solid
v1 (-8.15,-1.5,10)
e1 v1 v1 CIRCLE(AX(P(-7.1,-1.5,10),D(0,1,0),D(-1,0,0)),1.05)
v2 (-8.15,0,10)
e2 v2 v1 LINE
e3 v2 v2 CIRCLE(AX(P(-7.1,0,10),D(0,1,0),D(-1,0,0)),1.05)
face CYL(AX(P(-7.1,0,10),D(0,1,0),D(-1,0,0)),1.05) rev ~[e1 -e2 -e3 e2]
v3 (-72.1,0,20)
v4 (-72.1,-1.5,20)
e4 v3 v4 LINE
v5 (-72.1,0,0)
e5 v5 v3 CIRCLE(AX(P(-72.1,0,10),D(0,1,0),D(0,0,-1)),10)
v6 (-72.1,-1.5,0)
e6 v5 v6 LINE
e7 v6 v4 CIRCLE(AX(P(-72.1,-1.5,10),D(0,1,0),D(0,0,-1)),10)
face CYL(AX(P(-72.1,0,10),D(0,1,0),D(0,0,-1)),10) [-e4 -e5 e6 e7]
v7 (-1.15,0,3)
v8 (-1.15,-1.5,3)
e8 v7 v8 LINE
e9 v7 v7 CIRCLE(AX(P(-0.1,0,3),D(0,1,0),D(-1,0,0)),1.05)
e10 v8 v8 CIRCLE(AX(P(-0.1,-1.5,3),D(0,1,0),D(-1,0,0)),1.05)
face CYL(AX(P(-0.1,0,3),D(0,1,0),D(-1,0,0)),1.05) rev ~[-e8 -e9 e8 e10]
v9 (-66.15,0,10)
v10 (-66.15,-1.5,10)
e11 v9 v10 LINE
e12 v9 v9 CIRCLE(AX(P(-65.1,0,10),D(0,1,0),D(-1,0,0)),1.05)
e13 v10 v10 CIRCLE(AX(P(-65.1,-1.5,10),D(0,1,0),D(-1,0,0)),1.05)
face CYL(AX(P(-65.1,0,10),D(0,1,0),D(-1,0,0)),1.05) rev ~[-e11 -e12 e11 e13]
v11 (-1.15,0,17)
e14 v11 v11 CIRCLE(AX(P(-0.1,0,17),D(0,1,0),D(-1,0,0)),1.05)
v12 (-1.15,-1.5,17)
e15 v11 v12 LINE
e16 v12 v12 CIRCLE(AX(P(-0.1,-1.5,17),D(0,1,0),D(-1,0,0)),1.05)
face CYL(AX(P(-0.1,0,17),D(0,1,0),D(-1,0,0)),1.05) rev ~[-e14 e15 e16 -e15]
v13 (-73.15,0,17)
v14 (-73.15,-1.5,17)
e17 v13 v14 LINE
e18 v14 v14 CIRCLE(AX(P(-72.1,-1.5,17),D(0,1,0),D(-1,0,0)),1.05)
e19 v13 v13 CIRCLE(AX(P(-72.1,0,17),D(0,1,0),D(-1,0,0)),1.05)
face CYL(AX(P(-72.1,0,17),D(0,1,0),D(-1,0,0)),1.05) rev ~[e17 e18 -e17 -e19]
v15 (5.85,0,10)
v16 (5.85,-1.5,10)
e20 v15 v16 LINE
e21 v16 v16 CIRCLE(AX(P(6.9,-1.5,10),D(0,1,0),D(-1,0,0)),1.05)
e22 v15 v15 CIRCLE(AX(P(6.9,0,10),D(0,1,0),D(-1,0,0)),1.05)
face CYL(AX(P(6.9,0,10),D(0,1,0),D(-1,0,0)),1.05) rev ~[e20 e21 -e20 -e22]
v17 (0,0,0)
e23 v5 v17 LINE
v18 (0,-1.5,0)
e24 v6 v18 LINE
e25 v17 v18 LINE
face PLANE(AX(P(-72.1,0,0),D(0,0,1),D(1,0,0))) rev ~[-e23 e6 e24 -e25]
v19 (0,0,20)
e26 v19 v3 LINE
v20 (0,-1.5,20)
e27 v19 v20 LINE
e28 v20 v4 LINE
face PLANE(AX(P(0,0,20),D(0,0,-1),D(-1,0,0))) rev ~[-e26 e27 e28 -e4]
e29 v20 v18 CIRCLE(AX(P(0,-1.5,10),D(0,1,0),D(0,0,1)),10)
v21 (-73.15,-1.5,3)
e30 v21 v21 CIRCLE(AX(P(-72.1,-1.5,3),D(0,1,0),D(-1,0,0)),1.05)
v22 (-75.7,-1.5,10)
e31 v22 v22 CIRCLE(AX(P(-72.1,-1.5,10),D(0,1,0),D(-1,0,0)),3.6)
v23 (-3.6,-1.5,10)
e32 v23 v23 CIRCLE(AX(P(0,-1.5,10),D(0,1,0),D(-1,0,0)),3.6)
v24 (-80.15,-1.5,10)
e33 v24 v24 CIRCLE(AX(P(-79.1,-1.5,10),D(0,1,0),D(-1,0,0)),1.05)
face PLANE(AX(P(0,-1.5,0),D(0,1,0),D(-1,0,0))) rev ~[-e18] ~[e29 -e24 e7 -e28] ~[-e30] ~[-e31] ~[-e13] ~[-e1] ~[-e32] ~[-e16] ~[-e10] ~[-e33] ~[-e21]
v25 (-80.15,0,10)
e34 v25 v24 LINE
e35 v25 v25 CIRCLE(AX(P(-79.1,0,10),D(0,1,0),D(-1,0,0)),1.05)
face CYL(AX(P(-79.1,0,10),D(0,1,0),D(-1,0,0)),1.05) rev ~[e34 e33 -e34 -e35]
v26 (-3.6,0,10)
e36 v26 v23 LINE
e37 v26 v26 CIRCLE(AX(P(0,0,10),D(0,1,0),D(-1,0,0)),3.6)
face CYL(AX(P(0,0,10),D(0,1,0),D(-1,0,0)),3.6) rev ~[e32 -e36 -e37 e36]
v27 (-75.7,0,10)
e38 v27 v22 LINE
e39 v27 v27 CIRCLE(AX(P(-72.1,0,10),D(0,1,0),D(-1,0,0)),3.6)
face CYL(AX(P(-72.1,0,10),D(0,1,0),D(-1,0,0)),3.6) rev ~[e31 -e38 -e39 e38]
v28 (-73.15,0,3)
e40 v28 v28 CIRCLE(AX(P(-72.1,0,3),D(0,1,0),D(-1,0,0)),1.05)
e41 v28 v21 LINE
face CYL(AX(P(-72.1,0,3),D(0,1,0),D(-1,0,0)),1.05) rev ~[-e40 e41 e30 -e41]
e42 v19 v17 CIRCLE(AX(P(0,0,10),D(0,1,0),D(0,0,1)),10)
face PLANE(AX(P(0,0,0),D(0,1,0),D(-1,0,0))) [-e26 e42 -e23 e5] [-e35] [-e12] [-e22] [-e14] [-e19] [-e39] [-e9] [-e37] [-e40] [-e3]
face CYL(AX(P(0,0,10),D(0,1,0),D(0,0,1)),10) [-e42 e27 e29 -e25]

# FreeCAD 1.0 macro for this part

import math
import FreeCAD as App
import Part
import Sketcher
from FreeCAD import Vector

doc = App.newDocument("Part")
body = doc.addObject("PartDesign::Body", "Body")

sketch1 = doc.addObject("Sketcher::SketchObject", "Sketch")
body.addObject(sketch1)
sketch1.AttachmentSupport = (doc.XZ_Plane, [""])
sketch1.MapMode = "FlatFace"
sketch1.addGeometry(Part.LineSegment(Vector(-72.1, 20, 0), Vector(0, 20, 0)), False)
sketch1.addGeometry(Part.ArcOfCircle(Part.Circle(Vector(0, 10, 0), Vector(0, 0, 1), 10), math.radians(-90), math.radians(90)), False)
sketch1.addGeometry(Part.LineSegment(Vector(0, 0, 0), Vector(-72.1, 0, 0)), False)
sketch1.addGeometry(Part.ArcOfCircle(Part.Circle(Vector(-72.1, 10, 0), Vector(0, 0, 1), 10), math.radians(90), math.radians(270)), False)
sketch1.addGeometry(Part.Circle(Vector(-0.1, 3, 0), Vector(0, 0, 1), 1.1), False)
sketch1.addGeometry(Part.Circle(Vector(-72.1, 3, 0), Vector(0, 0, 1), 1.1), False)
sketch1.addGeometry(Part.Circle(Vector(6.9, 10, 0), Vector(0, 0, 1), 1.1), False)
sketch1.addGeometry(Part.Circle(Vector(0, 10, 0), Vector(0, 0, 1), 3.6), False)
sketch1.addGeometry(Part.Circle(Vector(-7.1, 10, 0), Vector(0, 0, 1), 1.1), False)
sketch1.addGeometry(Part.Circle(Vector(-0.1, 17, 0), Vector(0, 0, 1), 1.1), False)
sketch1.addGeometry(Part.Circle(Vector(-65.1, 10, 0), Vector(0, 0, 1), 1.1), False)
sketch1.addGeometry(Part.Circle(Vector(-72.1, 10, 0), Vector(0, 0, 1), 3.6), False)
sketch1.addGeometry(Part.Circle(Vector(-79.1, 10, 0), Vector(0, 0, 1), 1.1), False)
sketch1.addGeometry(Part.Circle(Vector(-72.1, 17, 0), Vector(0, 0, 1), 1.1), False)
sketch1.addConstraint(Sketcher.Constraint("Tangent", 0, 2, 1, 2))
sketch1.addConstraint(Sketcher.Constraint("Tangent", 1, 1, 2, 1))
sketch1.addConstraint(Sketcher.Constraint("Tangent", 2, 2, 3, 2))
sketch1.addConstraint(Sketcher.Constraint("Tangent", 3, 1, 0, 1))
sketch1.addConstraint(Sketcher.Constraint("Horizontal", 0))
sketch1.addConstraint(Sketcher.Constraint("Horizontal", 2))
sketch1.addConstraint(Sketcher.Constraint("Coincident", 1, 1, -1, 1))
sketch1.addConstraint(Sketcher.Constraint("Coincident", 7, 3, 1, 3))
sketch1.addConstraint(Sketcher.Constraint("Coincident", 11, 3, 3, 3))
sketch1.addConstraint(Sketcher.Constraint("Equal", 4, 5))
sketch1.addConstraint(Sketcher.Constraint("Equal", 5, 6))
sketch1.addConstraint(Sketcher.Constraint("Equal", 6, 8))
sketch1.addConstraint(Sketcher.Constraint("Equal", 8, 9))
sketch1.addConstraint(Sketcher.Constraint("Equal", 9, 10))
sketch1.addConstraint(Sketcher.Constraint("Equal", 7, 11))
sketch1.addConstraint(Sketcher.Constraint("Equal", 10, 12))
sketch1.addConstraint(Sketcher.Constraint("Equal", 12, 13))
sketch1.addConstraint(Sketcher.Constraint("Horizontal", 4, 3, 5, 3))
sketch1.addConstraint(Sketcher.Constraint("Horizontal", 3, 3, 6, 3))
sketch1.addConstraint(Sketcher.Constraint("Horizontal", 7, 3, 8, 3))
sketch1.addConstraint(Sketcher.Constraint("Horizontal", 8, 3, 10, 3))
sketch1.addConstraint(Sketcher.Constraint("Horizontal", 11, 3, 12, 3))
sketch1.addConstraint(Sketcher.Constraint("Horizontal", 9, 3, 13, 3))
sketch1.addConstraint(Sketcher.Constraint("Vertical", 3, 3, 5, 3))
sketch1.addConstraint(Sketcher.Constraint("Vertical", 4, 3, 9, 3))
sketch1.addConstraint(Sketcher.Constraint("Vertical", 11, 3, 13, 3))
sketch1.addConstraint(Sketcher.Constraint("Radius", 1, 10.0))
sketch1.addConstraint(Sketcher.Constraint("Diameter", 4, 2.1))
sketch1.addConstraint(Sketcher.Constraint("Diameter", 7, 7.2))
sketch1.addConstraint(Sketcher.Constraint("DistanceX", 0, 1, 0, 2, 72.1))
sketch1.addConstraint(Sketcher.Constraint("DistanceY", -1, 1, 4, 3, 3.0))
sketch1.addConstraint(Sketcher.Constraint("DistanceY", -1, 1, 9, 3, 17.0))
sketch1.addConstraint(Sketcher.Constraint("DistanceX", 3, 3, 4, 3, 72.0))
sketch1.addConstraint(Sketcher.Constraint("DistanceX", 4, 3, 6, 3, 7.0))
sketch1.addConstraint(Sketcher.Constraint("DistanceX", 8, 3, 4, 3, 7.0))
sketch1.addConstraint(Sketcher.Constraint("DistanceX", 3, 3, 10, 3, 7.0))
sketch1.addConstraint(Sketcher.Constraint("DistanceX", 12, 3, 3, 3, 7.0))
pad1 = doc.addObject("PartDesign::Pad", "Pad")
body.addObject(pad1)
pad1.Profile = sketch1
pad1.Length = 1.5

doc.recompute()
